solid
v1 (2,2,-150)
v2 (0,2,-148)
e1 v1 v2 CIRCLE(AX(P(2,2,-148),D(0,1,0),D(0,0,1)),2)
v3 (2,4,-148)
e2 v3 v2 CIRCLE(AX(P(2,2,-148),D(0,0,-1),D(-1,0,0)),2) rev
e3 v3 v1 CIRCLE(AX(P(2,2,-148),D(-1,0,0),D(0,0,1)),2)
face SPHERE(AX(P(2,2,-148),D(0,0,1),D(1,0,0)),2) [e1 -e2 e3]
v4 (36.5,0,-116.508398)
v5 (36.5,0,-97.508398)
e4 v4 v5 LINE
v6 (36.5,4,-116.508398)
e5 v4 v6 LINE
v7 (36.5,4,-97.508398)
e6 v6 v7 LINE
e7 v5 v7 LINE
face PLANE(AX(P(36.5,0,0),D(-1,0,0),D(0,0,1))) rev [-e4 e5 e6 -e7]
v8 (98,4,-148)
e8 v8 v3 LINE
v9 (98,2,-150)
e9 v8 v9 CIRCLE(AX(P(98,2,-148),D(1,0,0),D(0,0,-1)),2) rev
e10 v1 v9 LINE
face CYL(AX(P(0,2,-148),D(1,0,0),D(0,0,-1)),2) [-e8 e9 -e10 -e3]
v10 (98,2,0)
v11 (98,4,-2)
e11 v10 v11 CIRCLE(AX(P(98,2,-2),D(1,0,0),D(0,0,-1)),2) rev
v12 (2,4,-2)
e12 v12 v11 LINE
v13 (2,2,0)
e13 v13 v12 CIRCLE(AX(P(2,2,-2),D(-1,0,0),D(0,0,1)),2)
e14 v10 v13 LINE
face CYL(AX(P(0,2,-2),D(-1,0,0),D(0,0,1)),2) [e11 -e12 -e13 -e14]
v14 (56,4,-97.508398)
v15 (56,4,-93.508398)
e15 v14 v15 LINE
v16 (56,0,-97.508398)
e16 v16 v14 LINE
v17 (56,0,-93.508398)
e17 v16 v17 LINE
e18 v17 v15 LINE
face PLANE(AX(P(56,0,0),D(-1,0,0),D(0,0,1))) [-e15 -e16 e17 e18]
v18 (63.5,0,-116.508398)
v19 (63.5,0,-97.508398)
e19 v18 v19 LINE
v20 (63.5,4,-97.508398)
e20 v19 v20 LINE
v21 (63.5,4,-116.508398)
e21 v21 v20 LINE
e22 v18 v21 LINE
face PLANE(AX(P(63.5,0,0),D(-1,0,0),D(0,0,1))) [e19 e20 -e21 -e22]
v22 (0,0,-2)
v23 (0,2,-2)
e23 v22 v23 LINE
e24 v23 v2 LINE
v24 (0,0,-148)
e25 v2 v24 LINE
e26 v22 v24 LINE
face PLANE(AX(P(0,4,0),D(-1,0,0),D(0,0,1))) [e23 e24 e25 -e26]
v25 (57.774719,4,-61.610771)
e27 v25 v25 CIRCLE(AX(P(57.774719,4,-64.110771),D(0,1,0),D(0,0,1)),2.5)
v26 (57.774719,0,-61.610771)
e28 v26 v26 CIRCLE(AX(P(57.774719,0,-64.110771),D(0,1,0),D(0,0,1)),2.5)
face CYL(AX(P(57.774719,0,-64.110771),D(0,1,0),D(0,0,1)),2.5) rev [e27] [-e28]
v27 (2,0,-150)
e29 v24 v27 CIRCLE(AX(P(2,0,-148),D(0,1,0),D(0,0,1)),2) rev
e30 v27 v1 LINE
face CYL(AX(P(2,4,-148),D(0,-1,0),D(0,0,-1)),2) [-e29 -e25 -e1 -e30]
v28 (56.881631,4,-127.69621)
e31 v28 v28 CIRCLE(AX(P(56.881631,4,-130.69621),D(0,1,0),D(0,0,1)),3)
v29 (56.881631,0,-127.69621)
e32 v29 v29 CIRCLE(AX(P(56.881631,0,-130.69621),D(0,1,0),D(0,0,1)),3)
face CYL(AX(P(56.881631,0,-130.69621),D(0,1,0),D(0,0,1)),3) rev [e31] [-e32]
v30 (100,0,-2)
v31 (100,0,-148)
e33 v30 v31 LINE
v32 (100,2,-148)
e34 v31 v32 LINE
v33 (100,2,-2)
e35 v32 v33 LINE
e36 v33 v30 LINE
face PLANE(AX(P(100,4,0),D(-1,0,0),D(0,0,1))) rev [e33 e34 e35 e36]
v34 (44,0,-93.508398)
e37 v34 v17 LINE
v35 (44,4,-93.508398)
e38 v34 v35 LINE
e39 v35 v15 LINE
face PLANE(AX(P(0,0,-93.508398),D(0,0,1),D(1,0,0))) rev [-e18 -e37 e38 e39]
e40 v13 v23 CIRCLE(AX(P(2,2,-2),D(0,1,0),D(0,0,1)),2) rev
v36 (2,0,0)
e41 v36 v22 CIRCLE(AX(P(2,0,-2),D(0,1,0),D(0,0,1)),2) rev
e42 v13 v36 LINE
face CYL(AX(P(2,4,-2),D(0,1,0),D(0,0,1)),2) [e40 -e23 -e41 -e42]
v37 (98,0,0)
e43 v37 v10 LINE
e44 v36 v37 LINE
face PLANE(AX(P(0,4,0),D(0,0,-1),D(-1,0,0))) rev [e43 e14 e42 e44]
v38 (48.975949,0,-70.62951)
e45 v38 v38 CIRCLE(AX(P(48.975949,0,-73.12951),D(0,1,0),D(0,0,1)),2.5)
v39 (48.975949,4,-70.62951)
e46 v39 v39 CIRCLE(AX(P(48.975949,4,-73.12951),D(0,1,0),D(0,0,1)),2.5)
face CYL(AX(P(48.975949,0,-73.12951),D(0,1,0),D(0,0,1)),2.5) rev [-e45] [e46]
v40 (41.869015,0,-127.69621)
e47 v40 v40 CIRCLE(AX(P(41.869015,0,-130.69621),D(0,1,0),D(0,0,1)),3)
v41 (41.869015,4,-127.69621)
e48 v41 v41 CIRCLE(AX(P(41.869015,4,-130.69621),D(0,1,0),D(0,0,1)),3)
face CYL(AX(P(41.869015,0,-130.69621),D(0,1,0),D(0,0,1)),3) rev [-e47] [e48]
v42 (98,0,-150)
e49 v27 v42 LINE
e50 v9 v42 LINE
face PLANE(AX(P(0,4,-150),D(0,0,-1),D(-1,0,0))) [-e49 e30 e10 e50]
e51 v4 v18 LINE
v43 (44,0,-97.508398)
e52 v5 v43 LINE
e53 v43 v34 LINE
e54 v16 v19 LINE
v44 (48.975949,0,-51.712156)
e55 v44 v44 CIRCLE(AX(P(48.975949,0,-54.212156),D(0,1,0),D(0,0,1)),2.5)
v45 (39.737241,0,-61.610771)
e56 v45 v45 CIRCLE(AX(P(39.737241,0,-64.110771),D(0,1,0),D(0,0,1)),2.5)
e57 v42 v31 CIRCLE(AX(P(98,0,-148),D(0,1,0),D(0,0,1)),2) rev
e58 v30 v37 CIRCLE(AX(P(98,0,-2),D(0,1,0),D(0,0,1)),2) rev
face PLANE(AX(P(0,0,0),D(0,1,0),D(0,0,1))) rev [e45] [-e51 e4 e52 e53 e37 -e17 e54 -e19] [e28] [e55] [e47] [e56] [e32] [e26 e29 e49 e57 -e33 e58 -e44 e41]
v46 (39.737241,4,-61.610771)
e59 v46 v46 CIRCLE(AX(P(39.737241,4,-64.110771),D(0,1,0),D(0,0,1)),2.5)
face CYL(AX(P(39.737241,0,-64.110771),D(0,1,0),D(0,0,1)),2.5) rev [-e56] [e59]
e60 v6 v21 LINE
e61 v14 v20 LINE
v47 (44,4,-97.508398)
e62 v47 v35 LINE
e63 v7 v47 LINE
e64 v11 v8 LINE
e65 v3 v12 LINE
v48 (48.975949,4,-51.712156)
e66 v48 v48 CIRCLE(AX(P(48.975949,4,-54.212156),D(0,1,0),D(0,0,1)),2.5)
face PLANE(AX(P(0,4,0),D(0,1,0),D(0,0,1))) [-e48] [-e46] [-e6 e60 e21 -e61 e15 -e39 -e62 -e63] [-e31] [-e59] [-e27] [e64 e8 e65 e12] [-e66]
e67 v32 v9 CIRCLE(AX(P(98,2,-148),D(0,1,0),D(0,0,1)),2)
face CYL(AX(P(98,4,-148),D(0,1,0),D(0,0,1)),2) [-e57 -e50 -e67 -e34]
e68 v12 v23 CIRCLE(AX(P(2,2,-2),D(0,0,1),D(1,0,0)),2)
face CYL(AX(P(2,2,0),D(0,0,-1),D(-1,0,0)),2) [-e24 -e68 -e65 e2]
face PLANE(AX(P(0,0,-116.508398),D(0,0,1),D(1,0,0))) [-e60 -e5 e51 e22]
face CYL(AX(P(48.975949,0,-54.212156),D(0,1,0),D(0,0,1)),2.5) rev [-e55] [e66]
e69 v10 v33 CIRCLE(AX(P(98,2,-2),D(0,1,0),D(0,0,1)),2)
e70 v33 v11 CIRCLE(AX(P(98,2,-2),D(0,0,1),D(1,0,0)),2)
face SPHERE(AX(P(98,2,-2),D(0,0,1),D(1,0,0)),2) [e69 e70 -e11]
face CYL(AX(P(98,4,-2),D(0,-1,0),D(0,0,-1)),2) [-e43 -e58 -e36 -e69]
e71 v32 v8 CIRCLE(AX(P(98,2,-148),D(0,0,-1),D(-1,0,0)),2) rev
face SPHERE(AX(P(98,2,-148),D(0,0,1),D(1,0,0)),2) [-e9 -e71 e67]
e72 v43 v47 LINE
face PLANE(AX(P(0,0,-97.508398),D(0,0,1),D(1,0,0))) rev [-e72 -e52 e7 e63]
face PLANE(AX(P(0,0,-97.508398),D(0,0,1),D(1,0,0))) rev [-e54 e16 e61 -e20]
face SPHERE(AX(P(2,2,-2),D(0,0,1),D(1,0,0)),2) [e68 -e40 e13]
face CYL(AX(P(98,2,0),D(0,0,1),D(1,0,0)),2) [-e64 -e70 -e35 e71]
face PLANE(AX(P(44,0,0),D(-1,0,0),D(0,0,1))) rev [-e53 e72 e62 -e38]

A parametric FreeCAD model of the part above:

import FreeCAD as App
import Part
import Sketcher
Q = App.Units.Quantity


def edges_at(feature, points):
    """Names of the edges that pass closest to the given points."""
    edges = feature.Shape.Edges
    near = lambda p: min(range(len(edges)), key=lambda i: edges[i].distToShape(Part.Vertex(*p))[0])
    return sorted({f"Edge{near(p) + 1}" for p in points})


def add_polygon(sketch, points):
    """Adds a closed chain of lines whose ends are joined by coincident constraints."""
    first, n = sketch.GeometryCount, len(points)
    for a, b in zip(points, points[1:] + points[:1]):
        sketch.addGeometry(Part.LineSegment(App.Vector(*a, 0), App.Vector(*b, 0)), False)
    for i in range(n):
        sketch.addConstraint(Sketcher.Constraint("Coincident", first + i, 2, first + (i + 1) % n, 1))

doc = App.newDocument("Part")
params = doc.addObject("Spreadsheet::Sheet", "Params")
for row, (alias, value) in enumerate([
    ("sketch1_width", "100 mm"),
    ("sketch1_height", "150 mm"),
    ("pad1_length", "4 mm"),
    ("sketch2_width", "27 mm"),
    ("sketch2_height", "19 mm"),
    ("pocket1_length", "4 mm"),
    ("sketch3_width", "12 mm"),
    ("sketch3_height", "4 mm"),
    ("pocket2_length", "4 mm"),
    ("sketch4_diameter", "5 mm"),
    ("pocket3_length", "4 mm"),
    ("sketch5_diameter", "6 mm"),
    ("pocket4_length", "4 mm"),
    ("fillet_radius", "2 mm"),
], start=1):
    params.set(f"A{row}", alias)
    params.set(f"B{row}", "=" + value)
    params.setAlias(f"B{row}", alias)

body = doc.addObject("PartDesign::Body", "Body")

# Sketch on XZ plane
sketch1 = body.newObject("Sketcher::SketchObject", "Sketch")
sketch1.AttachmentSupport = (doc.getObject("XZ_Plane"), [""])
sketch1.MapMode = "FlatFace"
add_polygon(sketch1, [(0, -150), (0, 0), (100, 0), (100, -150)])  # lines 0-3
sketch1.addConstraint([
    Sketcher.Constraint("Vertical", 0),
    Sketcher.Constraint("Horizontal", 1),
    Sketcher.Constraint("Vertical", 2),
    Sketcher.Constraint("Horizontal", 3),
    Sketcher.Constraint("Coincident", 0, 2, -1, 1),
    Sketcher.Constraint("DistanceX", 1, 1, 1, 2, Q("100 mm")),
    Sketcher.Constraint("DistanceY", 0, 1, 0, 2, Q("150 mm")),
])
sketch1.setExpression("Constraints[9]", "Params.sketch1_width")
sketch1.setExpression("Constraints[10]", "Params.sketch1_height")
pad1 = body.newObject("PartDesign::Pad", "Pad")
pad1.Profile = sketch1
pad1.setExpression("Length", "Params.pad1_length")
pad1.Reversed = True

# Sketch on XZ plane
sketch2 = body.newObject("Sketcher::SketchObject", "Sketch001")
sketch2.AttachmentSupport = (doc.getObject("XZ_Plane"), [""])
sketch2.MapMode = "FlatFace"
sketch2.AttachmentOffset = App.Placement(App.Vector(0, 0, -4), App.Rotation())
add_polygon(sketch2, [(36.5, -116.508398), (36.5, -97.508398), (63.5, -97.508398), (63.5, -116.508398)])  # lines 0-3
sketch2.addConstraint([
    Sketcher.Constraint("Vertical", 0),
    Sketcher.Constraint("Horizontal", 1),
    Sketcher.Constraint("Vertical", 2),
    Sketcher.Constraint("Horizontal", 3),
    Sketcher.Constraint("DistanceX", 1, 1, 1, 2, Q("27 mm")),
    Sketcher.Constraint("DistanceY", 0, 1, 0, 2, Q("19 mm")),
    Sketcher.Constraint("DistanceX", -1, 1, 0, 2, Q("36.5 mm")),
    Sketcher.Constraint("DistanceY", 0, 2, -1, 1, Q("97.508398 mm")),
])
sketch2.setExpression("Constraints[8]", "Params.sketch2_width")
sketch2.setExpression("Constraints[9]", "Params.sketch2_height")
pocket1 = body.newObject("PartDesign::Pocket", "Pocket")
pocket1.Profile = sketch2
pocket1.setExpression("Length", "Params.pocket1_length")
pocket1.Reversed = True

# Sketch on XZ plane
sketch3 = body.newObject("Sketcher::SketchObject", "Sketch002")
sketch3.AttachmentSupport = (doc.getObject("XZ_Plane"), [""])
sketch3.MapMode = "FlatFace"
sketch3.AttachmentOffset = App.Placement(App.Vector(0, 0, -4), App.Rotation())
add_polygon(sketch3, [(44, -97.508398), (44, -93.508398), (56, -93.508398), (56, -97.508398)])  # lines 0-3
sketch3.addConstraint([
    Sketcher.Constraint("Vertical", 0),
    Sketcher.Constraint("Horizontal", 1),
    Sketcher.Constraint("Vertical", 2),
    Sketcher.Constraint("Horizontal", 3),
    Sketcher.Constraint("DistanceX", 1, 1, 1, 2, Q("12 mm")),
    Sketcher.Constraint("DistanceY", 0, 1, 0, 2, Q("4 mm")),
    Sketcher.Constraint("DistanceX", -1, 1, 0, 2, Q("44 mm")),
    Sketcher.Constraint("DistanceY", 0, 2, -1, 1, Q("93.508398 mm")),
])
sketch3.setExpression("Constraints[8]", "Params.sketch3_width")
sketch3.setExpression("Constraints[9]", "Params.sketch3_height")
pocket2 = body.newObject("PartDesign::Pocket", "Pocket001")
pocket2.Profile = sketch3
pocket2.setExpression("Length", "Params.pocket2_length")
pocket2.Reversed = True

# Sketch on XZ plane
sketch4 = body.newObject("Sketcher::SketchObject", "Sketch003")
sketch4.AttachmentSupport = (doc.getObject("XZ_Plane"), [""])
sketch4.MapMode = "FlatFace"
sketch4.AttachmentOffset = App.Placement(App.Vector(0, 0, -4), App.Rotation())
sketch4.addGeometry([
    Part.Circle(App.Vector(48.975949, -73.12951, 0), App.Vector(0, 0, 1), 2.5),
    Part.Circle(App.Vector(48.975949, -54.212156, 0), App.Vector(0, 0, 1), 2.5),
    Part.Circle(App.Vector(57.774719, -64.110771, 0), App.Vector(0, 0, 1), 2.5),
    Part.Circle(App.Vector(39.737241, -64.110771, 0), App.Vector(0, 0, 1), 2.5),
], False)
sketch4.addConstraint([
    Sketcher.Constraint("Equal", 0, 1),
    Sketcher.Constraint("Equal", 1, 2),
    Sketcher.Constraint("Equal", 2, 3),
    Sketcher.Constraint("Horizontal", 2, 3, 3, 3),
    Sketcher.Constraint("Vertical", 0, 3, 1, 3),
    Sketcher.Constraint("Diameter", 0, Q("5 mm")),
    Sketcher.Constraint("DistanceX", -1, 1, 0, 3, Q("48.975949 mm")),
    Sketcher.Constraint("DistanceY", 0, 3, -1, 1, Q("73.12951 mm")),
    Sketcher.Constraint("DistanceX", -1, 1, 2, 3, Q("57.774719 mm")),
    Sketcher.Constraint("DistanceY", 2, 3, -1, 1, Q("64.110771 mm")),
    Sketcher.Constraint("DistanceX", -1, 1, 3, 3, Q("39.737241 mm")),
    Sketcher.Constraint("DistanceY", 1, 3, -1, 1, Q("54.212156 mm")),
])
sketch4.setExpression("Constraints[5]", "Params.sketch4_diameter")
pocket3 = body.newObject("PartDesign::Pocket", "Pocket002")
pocket3.Profile = sketch4
pocket3.setExpression("Length", "Params.pocket3_length")
pocket3.Reversed = True

# Sketch on XZ plane
sketch5 = body.newObject("Sketcher::SketchObject", "Sketch004")
sketch5.AttachmentSupport = (doc.getObject("XZ_Plane"), [""])
sketch5.MapMode = "FlatFace"
sketch5.AttachmentOffset = App.Placement(App.Vector(0, 0, -4), App.Rotation())
sketch5.addGeometry([
    Part.Circle(App.Vector(56.881631, -130.69621, 0), App.Vector(0, 0, 1), 3),
    Part.Circle(App.Vector(41.869015, -130.69621, 0), App.Vector(0, 0, 1), 3),
], False)
sketch5.addConstraint([
    Sketcher.Constraint("Equal", 0, 1),
    Sketcher.Constraint("Horizontal", 0, 3, 1, 3),
    Sketcher.Constraint("Diameter", 0, Q("6 mm")),
    Sketcher.Constraint("DistanceX", -1, 1, 0, 3, Q("56.881631 mm")),
    Sketcher.Constraint("DistanceY", 0, 3, -1, 1, Q("130.69621 mm")),
    Sketcher.Constraint("DistanceX", -1, 1, 1, 3, Q("41.869015 mm")),
])
sketch5.setExpression("Constraints[2]", "Params.sketch5_diameter")
pocket4 = body.newObject("PartDesign::Pocket", "Pocket003")
pocket4.Profile = sketch5
pocket4.setExpression("Length", "Params.pocket4_length")
pocket4.Reversed = True
doc.recompute()

fillet = body.newObject("PartDesign::Fillet", "Fillet")
fillet.Base = (pocket4, edges_at(pocket4, [
    (50, 4, 0),
    (0, 4, -75),
    (50, 4, -150),
    (0, 2, -150),
    (0, 2, 0),
    (100, 2, 0),
    (100, 2, -150),
    (100, 4, -75),
]))
fillet.setExpression("Radius", "Params.fillet_radius")

doc.recompute()
